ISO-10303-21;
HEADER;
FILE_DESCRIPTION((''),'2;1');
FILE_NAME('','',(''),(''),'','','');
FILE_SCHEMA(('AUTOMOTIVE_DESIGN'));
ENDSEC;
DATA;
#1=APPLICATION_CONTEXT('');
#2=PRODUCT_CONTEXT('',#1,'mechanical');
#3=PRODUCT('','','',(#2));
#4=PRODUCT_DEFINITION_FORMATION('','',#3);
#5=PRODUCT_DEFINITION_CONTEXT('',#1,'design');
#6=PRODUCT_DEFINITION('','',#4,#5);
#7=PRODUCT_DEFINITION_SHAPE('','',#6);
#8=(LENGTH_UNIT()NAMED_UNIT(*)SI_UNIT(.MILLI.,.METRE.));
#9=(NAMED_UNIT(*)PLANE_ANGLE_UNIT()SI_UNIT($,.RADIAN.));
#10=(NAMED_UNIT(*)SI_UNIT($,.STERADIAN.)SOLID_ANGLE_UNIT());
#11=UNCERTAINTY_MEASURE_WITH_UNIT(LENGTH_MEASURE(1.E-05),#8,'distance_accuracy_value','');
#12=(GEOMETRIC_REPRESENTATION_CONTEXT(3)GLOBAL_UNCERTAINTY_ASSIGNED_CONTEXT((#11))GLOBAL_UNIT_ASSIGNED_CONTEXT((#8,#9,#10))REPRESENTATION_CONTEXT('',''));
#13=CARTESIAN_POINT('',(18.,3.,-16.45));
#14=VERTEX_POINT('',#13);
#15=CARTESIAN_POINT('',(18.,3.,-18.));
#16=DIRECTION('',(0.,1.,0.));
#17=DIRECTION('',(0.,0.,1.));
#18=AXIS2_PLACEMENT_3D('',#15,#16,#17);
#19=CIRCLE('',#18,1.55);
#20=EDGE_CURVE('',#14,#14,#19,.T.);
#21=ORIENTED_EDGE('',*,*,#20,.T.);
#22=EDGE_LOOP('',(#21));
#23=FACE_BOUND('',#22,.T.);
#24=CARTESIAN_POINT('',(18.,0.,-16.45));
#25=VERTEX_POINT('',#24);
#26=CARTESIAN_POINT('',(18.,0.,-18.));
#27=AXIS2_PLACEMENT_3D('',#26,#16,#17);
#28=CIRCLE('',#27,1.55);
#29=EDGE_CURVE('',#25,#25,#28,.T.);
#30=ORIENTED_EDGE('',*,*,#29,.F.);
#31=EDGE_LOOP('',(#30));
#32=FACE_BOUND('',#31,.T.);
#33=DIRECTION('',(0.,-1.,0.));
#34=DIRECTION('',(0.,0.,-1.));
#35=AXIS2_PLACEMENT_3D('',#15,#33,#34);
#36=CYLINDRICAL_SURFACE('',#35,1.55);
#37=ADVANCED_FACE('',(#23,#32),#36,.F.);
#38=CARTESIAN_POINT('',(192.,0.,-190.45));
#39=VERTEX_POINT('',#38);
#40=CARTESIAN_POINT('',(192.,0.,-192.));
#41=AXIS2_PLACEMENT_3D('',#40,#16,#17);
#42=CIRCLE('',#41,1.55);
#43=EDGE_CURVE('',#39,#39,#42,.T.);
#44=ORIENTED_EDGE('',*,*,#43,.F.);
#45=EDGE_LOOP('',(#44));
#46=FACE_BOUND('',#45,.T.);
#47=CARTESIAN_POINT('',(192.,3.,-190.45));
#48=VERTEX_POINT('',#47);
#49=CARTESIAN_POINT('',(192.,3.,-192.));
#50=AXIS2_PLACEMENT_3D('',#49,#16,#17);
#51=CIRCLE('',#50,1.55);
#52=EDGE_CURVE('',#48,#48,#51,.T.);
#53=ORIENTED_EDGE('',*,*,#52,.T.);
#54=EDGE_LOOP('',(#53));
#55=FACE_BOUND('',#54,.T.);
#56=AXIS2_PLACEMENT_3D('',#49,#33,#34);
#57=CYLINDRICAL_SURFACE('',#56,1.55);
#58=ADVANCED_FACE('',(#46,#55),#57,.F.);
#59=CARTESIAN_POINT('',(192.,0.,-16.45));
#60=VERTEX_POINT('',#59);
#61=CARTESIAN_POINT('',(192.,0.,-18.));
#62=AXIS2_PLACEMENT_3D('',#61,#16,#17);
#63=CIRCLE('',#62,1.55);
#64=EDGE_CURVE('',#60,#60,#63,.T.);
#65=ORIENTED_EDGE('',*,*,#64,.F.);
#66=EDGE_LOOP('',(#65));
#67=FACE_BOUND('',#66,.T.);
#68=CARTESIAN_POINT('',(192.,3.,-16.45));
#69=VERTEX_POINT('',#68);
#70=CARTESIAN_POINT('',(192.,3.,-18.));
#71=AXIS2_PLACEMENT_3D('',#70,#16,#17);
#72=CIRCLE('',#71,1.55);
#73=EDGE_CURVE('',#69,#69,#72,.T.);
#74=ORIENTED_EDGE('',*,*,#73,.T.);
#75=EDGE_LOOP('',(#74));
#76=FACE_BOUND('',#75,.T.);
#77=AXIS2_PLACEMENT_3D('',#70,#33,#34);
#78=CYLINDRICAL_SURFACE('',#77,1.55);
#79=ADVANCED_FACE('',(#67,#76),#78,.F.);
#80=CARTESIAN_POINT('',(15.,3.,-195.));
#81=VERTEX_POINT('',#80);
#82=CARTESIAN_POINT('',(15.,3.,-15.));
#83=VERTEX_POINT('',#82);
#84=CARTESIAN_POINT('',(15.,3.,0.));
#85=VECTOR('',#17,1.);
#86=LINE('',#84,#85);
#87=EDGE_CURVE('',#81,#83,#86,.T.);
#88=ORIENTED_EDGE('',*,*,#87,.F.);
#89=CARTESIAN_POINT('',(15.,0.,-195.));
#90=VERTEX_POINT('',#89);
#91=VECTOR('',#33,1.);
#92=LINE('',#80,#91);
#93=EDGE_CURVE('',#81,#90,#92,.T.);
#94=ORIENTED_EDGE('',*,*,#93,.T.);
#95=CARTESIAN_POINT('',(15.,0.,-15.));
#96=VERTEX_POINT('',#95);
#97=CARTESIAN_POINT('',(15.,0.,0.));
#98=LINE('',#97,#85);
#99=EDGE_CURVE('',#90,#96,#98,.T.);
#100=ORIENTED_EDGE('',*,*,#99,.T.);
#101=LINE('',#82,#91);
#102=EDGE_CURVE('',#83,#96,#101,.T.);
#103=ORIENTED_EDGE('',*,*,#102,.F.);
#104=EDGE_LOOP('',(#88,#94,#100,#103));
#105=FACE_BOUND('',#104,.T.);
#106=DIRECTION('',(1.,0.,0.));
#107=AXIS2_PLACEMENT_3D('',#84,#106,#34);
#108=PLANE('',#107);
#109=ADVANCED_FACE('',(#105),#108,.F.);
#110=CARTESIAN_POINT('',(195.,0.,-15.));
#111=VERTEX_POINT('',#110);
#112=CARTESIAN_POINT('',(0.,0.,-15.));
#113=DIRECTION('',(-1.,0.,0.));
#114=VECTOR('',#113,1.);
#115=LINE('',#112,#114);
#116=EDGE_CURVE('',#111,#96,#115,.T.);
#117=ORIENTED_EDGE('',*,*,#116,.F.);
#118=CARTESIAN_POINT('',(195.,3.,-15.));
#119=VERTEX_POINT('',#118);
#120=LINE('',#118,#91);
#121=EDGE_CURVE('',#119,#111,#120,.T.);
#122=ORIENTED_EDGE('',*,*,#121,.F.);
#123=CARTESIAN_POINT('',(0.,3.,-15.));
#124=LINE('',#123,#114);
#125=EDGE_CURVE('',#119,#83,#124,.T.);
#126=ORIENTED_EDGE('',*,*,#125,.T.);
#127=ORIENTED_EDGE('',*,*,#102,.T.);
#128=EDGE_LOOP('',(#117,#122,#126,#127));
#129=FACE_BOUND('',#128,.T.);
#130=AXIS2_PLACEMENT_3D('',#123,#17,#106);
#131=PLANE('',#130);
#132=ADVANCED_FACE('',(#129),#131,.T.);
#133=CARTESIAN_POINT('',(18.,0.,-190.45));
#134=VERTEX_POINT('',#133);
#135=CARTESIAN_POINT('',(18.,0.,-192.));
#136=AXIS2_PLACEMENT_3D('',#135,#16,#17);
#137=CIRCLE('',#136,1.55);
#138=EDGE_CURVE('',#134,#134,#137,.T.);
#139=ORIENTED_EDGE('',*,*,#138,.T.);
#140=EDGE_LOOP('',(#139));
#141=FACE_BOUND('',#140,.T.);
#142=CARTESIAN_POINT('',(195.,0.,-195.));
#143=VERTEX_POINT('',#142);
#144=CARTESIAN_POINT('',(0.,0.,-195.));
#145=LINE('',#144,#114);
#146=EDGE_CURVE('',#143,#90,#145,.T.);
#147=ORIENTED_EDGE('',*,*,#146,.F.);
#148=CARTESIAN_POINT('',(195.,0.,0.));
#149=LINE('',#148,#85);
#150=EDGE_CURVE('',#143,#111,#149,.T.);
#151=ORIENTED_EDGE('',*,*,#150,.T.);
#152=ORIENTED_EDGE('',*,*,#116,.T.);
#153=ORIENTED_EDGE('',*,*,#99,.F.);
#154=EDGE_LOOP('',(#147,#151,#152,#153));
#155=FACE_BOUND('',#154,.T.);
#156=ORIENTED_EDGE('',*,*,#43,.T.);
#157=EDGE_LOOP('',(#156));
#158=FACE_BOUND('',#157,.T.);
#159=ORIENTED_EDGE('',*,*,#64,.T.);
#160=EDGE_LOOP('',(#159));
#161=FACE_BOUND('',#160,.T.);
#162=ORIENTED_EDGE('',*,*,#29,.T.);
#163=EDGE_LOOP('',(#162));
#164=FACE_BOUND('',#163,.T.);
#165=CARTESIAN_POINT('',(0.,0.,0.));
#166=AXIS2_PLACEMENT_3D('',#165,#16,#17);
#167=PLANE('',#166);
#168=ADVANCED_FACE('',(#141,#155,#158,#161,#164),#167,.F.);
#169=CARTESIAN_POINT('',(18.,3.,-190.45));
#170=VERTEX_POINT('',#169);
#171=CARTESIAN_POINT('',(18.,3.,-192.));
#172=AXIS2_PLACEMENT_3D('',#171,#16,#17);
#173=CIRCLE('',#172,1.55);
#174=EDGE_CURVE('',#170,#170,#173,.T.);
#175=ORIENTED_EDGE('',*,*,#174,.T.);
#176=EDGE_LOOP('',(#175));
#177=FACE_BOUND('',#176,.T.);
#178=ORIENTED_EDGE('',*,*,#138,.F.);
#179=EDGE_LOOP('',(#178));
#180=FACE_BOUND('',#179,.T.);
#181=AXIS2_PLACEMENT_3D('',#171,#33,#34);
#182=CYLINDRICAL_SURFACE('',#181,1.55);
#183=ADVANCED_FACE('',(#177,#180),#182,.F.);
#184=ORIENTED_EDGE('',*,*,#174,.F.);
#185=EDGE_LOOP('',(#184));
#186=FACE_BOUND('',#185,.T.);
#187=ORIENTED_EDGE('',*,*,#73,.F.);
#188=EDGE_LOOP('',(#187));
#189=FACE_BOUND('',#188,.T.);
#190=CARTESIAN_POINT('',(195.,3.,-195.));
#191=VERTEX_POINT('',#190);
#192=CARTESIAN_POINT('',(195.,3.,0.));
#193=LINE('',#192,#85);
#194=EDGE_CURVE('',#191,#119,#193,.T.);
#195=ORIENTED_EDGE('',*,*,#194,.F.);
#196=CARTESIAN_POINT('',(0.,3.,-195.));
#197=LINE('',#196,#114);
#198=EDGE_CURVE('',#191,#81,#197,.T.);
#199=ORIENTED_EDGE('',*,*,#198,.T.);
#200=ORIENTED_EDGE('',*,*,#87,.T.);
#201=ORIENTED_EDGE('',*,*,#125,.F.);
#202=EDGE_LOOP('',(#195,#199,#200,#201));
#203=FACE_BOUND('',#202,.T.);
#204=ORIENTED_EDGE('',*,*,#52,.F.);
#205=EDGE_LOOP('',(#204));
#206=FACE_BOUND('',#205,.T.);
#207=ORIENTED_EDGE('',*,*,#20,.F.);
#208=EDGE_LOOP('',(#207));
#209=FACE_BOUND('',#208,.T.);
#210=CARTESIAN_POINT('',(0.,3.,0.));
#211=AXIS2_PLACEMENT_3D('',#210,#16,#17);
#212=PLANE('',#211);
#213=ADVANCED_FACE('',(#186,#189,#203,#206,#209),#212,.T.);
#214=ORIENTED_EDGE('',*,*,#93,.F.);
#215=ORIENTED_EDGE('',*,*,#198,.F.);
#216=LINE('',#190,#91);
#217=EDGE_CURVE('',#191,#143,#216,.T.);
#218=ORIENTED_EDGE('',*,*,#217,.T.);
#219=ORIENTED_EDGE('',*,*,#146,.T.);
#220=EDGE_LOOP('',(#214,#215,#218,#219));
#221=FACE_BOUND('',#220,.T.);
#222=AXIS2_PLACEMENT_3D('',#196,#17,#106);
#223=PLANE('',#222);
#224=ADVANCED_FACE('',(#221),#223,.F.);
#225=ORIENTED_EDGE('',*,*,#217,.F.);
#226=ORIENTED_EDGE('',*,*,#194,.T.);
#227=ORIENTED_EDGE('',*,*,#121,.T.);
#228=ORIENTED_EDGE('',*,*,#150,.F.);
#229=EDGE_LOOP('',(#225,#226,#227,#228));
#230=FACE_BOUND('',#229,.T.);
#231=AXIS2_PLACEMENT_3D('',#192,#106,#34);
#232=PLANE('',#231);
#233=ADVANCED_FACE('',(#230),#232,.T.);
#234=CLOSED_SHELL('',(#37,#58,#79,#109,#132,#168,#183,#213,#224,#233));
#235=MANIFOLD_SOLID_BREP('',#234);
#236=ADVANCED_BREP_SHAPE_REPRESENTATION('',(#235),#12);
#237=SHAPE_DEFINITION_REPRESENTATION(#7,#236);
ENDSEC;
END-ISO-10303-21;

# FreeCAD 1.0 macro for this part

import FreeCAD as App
import Part
import Sketcher

V = App.Vector

doc = App.newDocument("Part")
body = doc.addObject("PartDesign::Body", "Body")

# Sketch on XZ plane
sketch1 = body.newObject("Sketcher::SketchObject", "Sketch")
sketch1.AttachmentSupport = (doc.getObject("XZ_Plane"), [""])
sketch1.MapMode = "FlatFace"
sketch1.addGeometry([
    Part.LineSegment(V(195, -195, 0), V(15, -195, 0)),  # 0
    Part.LineSegment(V(15, -195, 0), V(15, -15, 0)),  # 1
    Part.LineSegment(V(15, -15, 0), V(195, -15, 0)),  # 2
    Part.LineSegment(V(195, -15, 0), V(195, -195, 0)),  # 3
    Part.Circle(V(18, -18, 0), V(0, 0, 1), 1.6),  # 4
    Part.Circle(V(192, -18, 0), V(0, 0, 1), 1.6),  # 5
    Part.Circle(V(18, -192, 0), V(0, 0, 1), 1.6),  # 6
    Part.Circle(V(192, -192, 0), V(0, 0, 1), 1.6),  # 7
], False)
sketch1.addConstraint([
    Sketcher.Constraint("Coincident", 0, 2, 1, 1),
    Sketcher.Constraint("Coincident", 1, 2, 2, 1),
    Sketcher.Constraint("Coincident", 2, 2, 3, 1),
    Sketcher.Constraint("Coincident", 3, 2, 0, 1),
    Sketcher.Constraint("Horizontal", 0),
    Sketcher.Constraint("Vertical", 1),
    Sketcher.Constraint("Horizontal", 2),
    Sketcher.Constraint("Vertical", 3),
    Sketcher.Constraint("Equal", 4, 5),
    Sketcher.Constraint("Equal", 5, 6),
    Sketcher.Constraint("Equal", 6, 7),
    Sketcher.Constraint("Horizontal", 4, 3, 5, 3),
    Sketcher.Constraint("Horizontal", 6, 3, 7, 3),
    Sketcher.Constraint("Vertical", 4, 3, 6, 3),
    Sketcher.Constraint("Vertical", 5, 3, 7, 3),
    Sketcher.Constraint("Equal", 2, 1),
    Sketcher.Constraint("Diameter", 4, 3.1),
    Sketcher.Constraint("DistanceX", 0, 2, 0, 1, 180.0),
    Sketcher.Constraint("DistanceX", -1, 1, 4, 3, 18.0),
    Sketcher.Constraint("DistanceY", 4, 3, -1, 1, 18.0),
    Sketcher.Constraint("DistanceX", -1, 1, 5, 3, 192.0),
    Sketcher.Constraint("DistanceY", 6, 3, -1, 1, 192.0),
    Sketcher.Constraint("DistanceX", -1, 1, 0, 2, 15.0),
    Sketcher.Constraint("DistanceY", 0, 2, -1, 1, 195.0),
])
pad1 = body.newObject("PartDesign::Pad", "Pad")
pad1.Profile = sketch1
pad1.Length = 3
pad1.Reversed = True

doc.recompute()
